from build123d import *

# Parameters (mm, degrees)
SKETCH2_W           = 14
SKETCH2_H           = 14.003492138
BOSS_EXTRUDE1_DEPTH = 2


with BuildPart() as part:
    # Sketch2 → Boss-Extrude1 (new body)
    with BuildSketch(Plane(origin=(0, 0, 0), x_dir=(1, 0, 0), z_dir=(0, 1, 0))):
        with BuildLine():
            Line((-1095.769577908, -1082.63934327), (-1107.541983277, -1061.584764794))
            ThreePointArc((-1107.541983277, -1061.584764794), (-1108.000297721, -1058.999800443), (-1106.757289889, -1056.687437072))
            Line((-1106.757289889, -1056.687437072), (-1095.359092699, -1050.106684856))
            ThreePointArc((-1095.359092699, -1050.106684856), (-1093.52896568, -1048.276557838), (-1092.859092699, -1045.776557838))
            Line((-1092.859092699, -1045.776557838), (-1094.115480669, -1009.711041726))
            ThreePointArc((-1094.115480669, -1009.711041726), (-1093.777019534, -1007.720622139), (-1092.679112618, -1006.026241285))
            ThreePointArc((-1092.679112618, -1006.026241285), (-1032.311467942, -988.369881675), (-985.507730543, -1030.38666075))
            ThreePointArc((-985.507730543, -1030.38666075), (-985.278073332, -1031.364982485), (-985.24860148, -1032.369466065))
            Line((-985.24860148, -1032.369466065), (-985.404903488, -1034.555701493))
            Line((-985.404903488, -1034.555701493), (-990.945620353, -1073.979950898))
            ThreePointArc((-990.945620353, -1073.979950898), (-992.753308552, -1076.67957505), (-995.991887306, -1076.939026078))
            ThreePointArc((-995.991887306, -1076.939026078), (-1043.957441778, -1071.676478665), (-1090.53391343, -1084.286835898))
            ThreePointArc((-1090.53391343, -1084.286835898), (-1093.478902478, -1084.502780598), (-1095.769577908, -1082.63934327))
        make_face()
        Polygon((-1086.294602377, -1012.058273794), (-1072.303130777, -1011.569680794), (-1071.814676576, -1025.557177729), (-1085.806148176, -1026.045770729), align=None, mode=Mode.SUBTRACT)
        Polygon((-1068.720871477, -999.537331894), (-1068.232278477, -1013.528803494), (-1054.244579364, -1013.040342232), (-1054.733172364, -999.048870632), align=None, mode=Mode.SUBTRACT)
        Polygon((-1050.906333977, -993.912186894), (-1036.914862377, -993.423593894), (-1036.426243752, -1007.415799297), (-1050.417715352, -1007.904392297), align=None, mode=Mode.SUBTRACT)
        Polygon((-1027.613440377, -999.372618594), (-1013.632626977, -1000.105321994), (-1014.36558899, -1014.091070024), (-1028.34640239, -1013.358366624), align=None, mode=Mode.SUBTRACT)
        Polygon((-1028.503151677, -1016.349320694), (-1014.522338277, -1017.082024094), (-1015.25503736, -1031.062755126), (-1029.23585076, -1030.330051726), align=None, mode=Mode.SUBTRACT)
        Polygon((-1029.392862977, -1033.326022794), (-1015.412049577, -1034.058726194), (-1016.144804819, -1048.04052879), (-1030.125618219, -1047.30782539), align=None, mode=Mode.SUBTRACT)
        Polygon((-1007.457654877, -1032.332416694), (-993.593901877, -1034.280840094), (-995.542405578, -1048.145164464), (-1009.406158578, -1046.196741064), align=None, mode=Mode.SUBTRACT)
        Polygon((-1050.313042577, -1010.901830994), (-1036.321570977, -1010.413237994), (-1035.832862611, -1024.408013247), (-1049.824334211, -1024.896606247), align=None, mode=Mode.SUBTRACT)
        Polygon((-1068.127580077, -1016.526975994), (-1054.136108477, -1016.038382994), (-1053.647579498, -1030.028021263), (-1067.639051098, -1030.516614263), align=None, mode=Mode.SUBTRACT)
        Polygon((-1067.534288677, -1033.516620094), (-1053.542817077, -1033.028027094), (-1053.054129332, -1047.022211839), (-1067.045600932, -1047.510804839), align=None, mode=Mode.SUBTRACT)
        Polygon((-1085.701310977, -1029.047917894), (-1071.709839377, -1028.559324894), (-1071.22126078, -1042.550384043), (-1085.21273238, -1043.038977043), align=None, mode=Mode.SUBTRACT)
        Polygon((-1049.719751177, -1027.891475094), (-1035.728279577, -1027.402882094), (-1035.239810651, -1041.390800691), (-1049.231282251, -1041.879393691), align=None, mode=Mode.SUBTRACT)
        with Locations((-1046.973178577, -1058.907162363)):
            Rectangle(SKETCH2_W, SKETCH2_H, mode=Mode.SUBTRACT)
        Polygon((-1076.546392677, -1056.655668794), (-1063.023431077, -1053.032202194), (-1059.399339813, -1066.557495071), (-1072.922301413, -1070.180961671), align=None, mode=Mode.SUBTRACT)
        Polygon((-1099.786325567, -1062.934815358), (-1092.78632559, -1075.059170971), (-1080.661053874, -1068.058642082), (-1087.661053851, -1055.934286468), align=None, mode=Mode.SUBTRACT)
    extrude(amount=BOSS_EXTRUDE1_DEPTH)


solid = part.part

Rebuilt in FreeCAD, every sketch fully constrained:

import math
import FreeCAD as App
import Part
import Sketcher

V = App.Vector
Q = App.Units.Quantity


def add_polygon(sketch, points):
    """Adds a closed chain of lines whose ends are joined by coincident constraints."""
    first, n = sketch.GeometryCount, len(points)
    for a, b in zip(points, points[1:] + points[:1]):
        sketch.addGeometry(Part.LineSegment(App.Vector(*a, 0), App.Vector(*b, 0)), False)
    for i in range(n):
        sketch.addConstraint(Sketcher.Constraint("Coincident", first + i, 2, first + (i + 1) % n, 1))

doc = App.newDocument("Part")
body = doc.addObject("PartDesign::Body", "Body")

sketch1 = doc.addObject("Sketcher::SketchObject", "Sketch")
body.addObject(sketch1)
sketch1.AttachmentSupport = (doc.XZ_Plane, [""])
sketch1.MapMode = "FlatFace"
sketch1.addGeometry(Part.LineSegment(V(-1107.5, 1061.6, 0), V(-1095.8, 1082.6, 0)), False)
sketch1.addGeometry(Part.ArcOfCircle(Part.Circle(V(-1092.3, 1080.7, 0), V(0, 0, 1), 4), math.radians(64), math.radians(151)), False)
sketch1.addGeometry(Part.ArcOfCircle(Part.Circle(V(-1033.9, 1201.2, 0), V(0, 0, 1), 129.9), math.radians(-116), math.radians(-73)), False)
sketch1.addGeometry(Part.ArcOfCircle(Part.Circle(V(-994.6, 1073.5, 0), V(0, 0, 1), 3.7), math.radians(8), math.radians(111)), False)
sketch1.addGeometry(Part.LineSegment(V(-990.9, 1074, 0), V(-985.4, 1034.6, 0)), False)
sketch1.addGeometry(Part.LineSegment(V(-985.4, 1034.6, 0), V(-985.2, 1032.4, 0)), False)
sketch1.addGeometry(Part.ArcOfCircle(Part.Circle(V(-990.2, 1032, 0), V(0, 0, 1), 5), math.radians(-19), math.radians(4)), False)
sketch1.addGeometry(Part.ArcOfCircle(Part.Circle(V(-1046.6, 1051.4, 0), V(0, 0, 1), 64.6), math.radians(-135), math.radians(-19)), False)
sketch1.addGeometry(Part.ArcOfCircle(Part.Circle(V(-1089.1, 1009.5, 0), V(0, 0, 1), 5), math.radians(178), math.radians(225)), False)
sketch1.addGeometry(Part.LineSegment(V(-1094.1, 1009.7, 0), V(-1092.9, 1045.8, 0)), False)
sketch1.addGeometry(Part.ArcOfCircle(Part.Circle(V(-1097.9, 1045.8, 0), V(0, 0, 1), 5), math.radians(0), math.radians(60)), False)
sketch1.addGeometry(Part.LineSegment(V(-1095.4, 1050.1, 0), V(-1106.8, 1056.7, 0)), False)
sketch1.addGeometry(Part.ArcOfCircle(Part.Circle(V(-1104.1, 1059.6, 0), V(0, 0, 1), 4), math.radians(151), math.radians(227)), False)
add_polygon(sketch1, [(-1007.5, 1032.3), (-993.6, 1034.3), (-995.5, 1048.1), (-1009.4, 1046.2)])
add_polygon(sketch1, [(-1029.4, 1033.3), (-1015.4, 1034.1), (-1016.1, 1048), (-1030.1, 1047.3)])
add_polygon(sketch1, [(-1049.7, 1027.9), (-1035.7, 1027.4), (-1035.2, 1041.4), (-1049.2, 1041.9)])
add_polygon(sketch1, [(-1054, 1065.9), (-1054, 1051.9), (-1040, 1051.9), (-1040, 1065.9)])
add_polygon(sketch1, [(-1076.5, 1056.7), (-1063, 1053), (-1059.4, 1066.6), (-1072.9, 1070.2)])
add_polygon(sketch1, [(-1099.8, 1062.9), (-1087.7, 1055.9), (-1080.7, 1068.1), (-1092.8, 1075.1)])
add_polygon(sketch1, [(-1067.5, 1033.5), (-1053.5, 1033), (-1053.1, 1047), (-1067, 1047.5)])
add_polygon(sketch1, [(-1085.7, 1029), (-1071.7, 1028.6), (-1071.2, 1042.6), (-1085.2, 1043)])
add_polygon(sketch1, [(-1028.5, 1016.3), (-1014.5, 1017.1), (-1015.3, 1031.1), (-1029.2, 1030.3)])
add_polygon(sketch1, [(-1050.3, 1010.9), (-1036.3, 1010.4), (-1035.8, 1024.4), (-1049.8, 1024.9)])
add_polygon(sketch1, [(-1027.6, 999.4), (-1013.6, 1000.1), (-1014.4, 1014.1), (-1028.3, 1013.4)])
add_polygon(sketch1, [(-1050.9, 993.9), (-1036.9, 993.4), (-1036.4, 1007.4), (-1050.4, 1007.9)])
add_polygon(sketch1, [(-1068.1, 1016.5), (-1054.1, 1016), (-1053.6, 1030), (-1067.6, 1030.5)])
add_polygon(sketch1, [(-1086.3, 1012.1), (-1072.3, 1011.6), (-1071.8, 1025.6), (-1085.8, 1026)])
add_polygon(sketch1, [(-1068.7, 999.5), (-1054.7, 999), (-1054.2, 1013), (-1068.2, 1013.5)])
sketch1.addConstraint(Sketcher.Constraint("Tangent", 0, 2, 1, 2))
sketch1.addConstraint(Sketcher.Constraint("Tangent", 1, 1, 2, 1))
sketch1.addConstraint(Sketcher.Constraint("Coincident", 2, 2, 3, 2))
sketch1.addConstraint(Sketcher.Constraint("Tangent", 3, 1, 4, 1))
sketch1.addConstraint(Sketcher.Constraint("Coincident", 4, 2, 5, 1))
sketch1.addConstraint(Sketcher.Constraint("Coincident", 5, 2, 6, 2))
sketch1.addConstraint(Sketcher.Constraint("Tangent", 6, 1, 7, 2))
sketch1.addConstraint(Sketcher.Constraint("Tangent", 7, 1, 8, 2))
sketch1.addConstraint(Sketcher.Constraint("Tangent", 8, 1, 9, 1))
sketch1.addConstraint(Sketcher.Constraint("Coincident", 9, 2, 10, 1))
sketch1.addConstraint(Sketcher.Constraint("Tangent", 10, 2, 11, 1))
sketch1.addConstraint(Sketcher.Constraint("Coincident", 11, 2, 12, 2))
sketch1.addConstraint(Sketcher.Constraint("Tangent", 12, 1, 0, 1))
sketch1.addConstraint(Sketcher.Constraint("Vertical", 25))
sketch1.addConstraint(Sketcher.Constraint("Horizontal", 26))
sketch1.addConstraint(Sketcher.Constraint("Vertical", 27))
sketch1.addConstraint(Sketcher.Constraint("Horizontal", 28))
sketch1.addConstraint(Sketcher.Constraint("Equal", 1, 12))
sketch1.addConstraint(Sketcher.Constraint("Perpendicular", 4, 13))
sketch1.addConstraint(Sketcher.Constraint("Perpendicular", 13, 14))
sketch1.addConstraint(Sketcher.Constraint("Perpendicular", 14, 15))
sketch1.addConstraint(Sketcher.Constraint("Perpendicular", 15, 16))
sketch1.addConstraint(Sketcher.Constraint("Perpendicular", 17, 18))
sketch1.addConstraint(Sketcher.Constraint("Perpendicular", 18, 19))
sketch1.addConstraint(Sketcher.Constraint("Perpendicular", 19, 20))
sketch1.addConstraint(Sketcher.Constraint("Perpendicular", 21, 22))
sketch1.addConstraint(Sketcher.Constraint("Perpendicular", 22, 23))
sketch1.addConstraint(Sketcher.Constraint("Perpendicular", 23, 24))
sketch1.addConstraint(Sketcher.Constraint("Perpendicular", 29, 30))
sketch1.addConstraint(Sketcher.Constraint("Perpendicular", 30, 31))
sketch1.addConstraint(Sketcher.Constraint("Perpendicular", 31, 32))
sketch1.addConstraint(Sketcher.Constraint("Parallel", 11, 33))
sketch1.addConstraint(Sketcher.Constraint("Perpendicular", 33, 34))
sketch1.addConstraint(Sketcher.Constraint("Perpendicular", 34, 35))
sketch1.addConstraint(Sketcher.Constraint("Perpendicular", 35, 36))
sketch1.addConstraint(Sketcher.Constraint("Perpendicular", 24, 37))
sketch1.addConstraint(Sketcher.Constraint("Perpendicular", 37, 38))
sketch1.addConstraint(Sketcher.Constraint("Perpendicular", 38, 39))
sketch1.addConstraint(Sketcher.Constraint("Perpendicular", 39, 40))
sketch1.addConstraint(Sketcher.Constraint("Perpendicular", 40, 41))
sketch1.addConstraint(Sketcher.Constraint("Perpendicular", 41, 42))
sketch1.addConstraint(Sketcher.Constraint("Perpendicular", 42, 43))
sketch1.addConstraint(Sketcher.Constraint("Perpendicular", 43, 44))
sketch1.addConstraint(Sketcher.Constraint("Perpendicular", 20, 45))
sketch1.addConstraint(Sketcher.Constraint("Perpendicular", 45, 46))
sketch1.addConstraint(Sketcher.Constraint("Perpendicular", 46, 47))
sketch1.addConstraint(Sketcher.Constraint("Perpendicular", 47, 48))
sketch1.addConstraint(Sketcher.Constraint("Perpendicular", 44, 49))
sketch1.addConstraint(Sketcher.Constraint("Perpendicular", 49, 50))
sketch1.addConstraint(Sketcher.Constraint("Perpendicular", 50, 51))
sketch1.addConstraint(Sketcher.Constraint("Perpendicular", 51, 52))
sketch1.addConstraint(Sketcher.Constraint("Perpendicular", 48, 53))
sketch1.addConstraint(Sketcher.Constraint("Perpendicular", 53, 54))
sketch1.addConstraint(Sketcher.Constraint("Perpendicular", 54, 55))
sketch1.addConstraint(Sketcher.Constraint("Perpendicular", 55, 56))
sketch1.addConstraint(Sketcher.Constraint("Perpendicular", 52, 57))
sketch1.addConstraint(Sketcher.Constraint("Perpendicular", 57, 58))
sketch1.addConstraint(Sketcher.Constraint("Perpendicular", 58, 59))
sketch1.addConstraint(Sketcher.Constraint("Perpendicular", 59, 60))
sketch1.addConstraint(Sketcher.Constraint("Perpendicular", 60, 61))
sketch1.addConstraint(Sketcher.Constraint("Perpendicular", 61, 62))
sketch1.addConstraint(Sketcher.Constraint("Perpendicular", 62, 63))
sketch1.addConstraint(Sketcher.Constraint("Perpendicular", 63, 64))
sketch1.addConstraint(Sketcher.Constraint("Perpendicular", 64, 65))
sketch1.addConstraint(Sketcher.Constraint("Perpendicular", 65, 66))
sketch1.addConstraint(Sketcher.Constraint("Perpendicular", 66, 67))
sketch1.addConstraint(Sketcher.Constraint("Perpendicular", 67, 68))
sketch1.addConstraint(Sketcher.Constraint("Perpendicular", 68, 69))
sketch1.addConstraint(Sketcher.Constraint("Perpendicular", 69, 70))
sketch1.addConstraint(Sketcher.Constraint("Perpendicular", 70, 71))
sketch1.addConstraint(Sketcher.Constraint("Perpendicular", 71, 72))
sketch1.addConstraint(Sketcher.Constraint("Horizontal", 10, 3, 9, 2))
sketch1.addConstraint(Sketcher.Constraint("Equal", 15, 17))
sketch1.addConstraint(Sketcher.Constraint("Equal", 19, 21))
sketch1.addConstraint(Sketcher.Constraint("Equal", 23, 29))
sketch1.addConstraint(Sketcher.Constraint("Equal", 31, 34))
sketch1.addConstraint(Sketcher.Constraint("Equal", 36, 37))
sketch1.addConstraint(Sketcher.Constraint("Equal", 39, 41))
sketch1.addConstraint(Sketcher.Constraint("Equal", 43, 45))
sketch1.addConstraint(Sketcher.Constraint("Equal", 47, 49))
sketch1.addConstraint(Sketcher.Constraint("Equal", 51, 53))
sketch1.addConstraint(Sketcher.Constraint("Equal", 55, 57))
sketch1.addConstraint(Sketcher.Constraint("Equal", 59, 61))
sketch1.addConstraint(Sketcher.Constraint("Equal", 63, 65))
sketch1.addConstraint(Sketcher.Constraint("Equal", 67, 70))
sketch1.addConstraint(Sketcher.Constraint("Radius", 1, 4.0))
sketch1.addConstraint(Sketcher.Constraint("Radius", 10, 5.0))
sketch1.addConstraint(Sketcher.Constraint("DistanceX", 26, 1, 26, 2, 14.0))
sketch1.addConstraint(Sketcher.Constraint("Angle", 4, Q("-82 deg")))
sketch1.addConstraint(Sketcher.Constraint("Angle", 11, Q("150 deg")))
sketch1.addConstraint(Sketcher.Constraint("Angle", 17, Q("3 deg")))
sketch1.addConstraint(Sketcher.Constraint("Angle", 21, Q("-2 deg")))
sketch1.addConstraint(Sketcher.Constraint("Angle", 29, Q("-15 deg")))
sketch1.addConstraint(Sketcher.Constraint("Distance", 13, 14.0))
sketch1.addConstraint(Sketcher.Constraint("Radius", 6, 5.002069))
sketch1.addConstraint(Sketcher.Constraint("Radius", 8, 5.00098))
sketch1.addConstraint(Sketcher.Constraint("Radius", 2, 129.883103))
sketch1.addConstraint(Sketcher.Constraint("Radius", 3, 3.731565))
sketch1.addConstraint(Sketcher.Constraint("Radius", 7, 64.645495))
sketch1.addConstraint(Sketcher.Constraint("DistanceY", -1, 1, 4, 2, 1034.555701))
sketch1.addConstraint(Sketcher.Constraint("DistanceX", 5, 2, -1, 1, 985.248601))
sketch1.addConstraint(Sketcher.Constraint("DistanceX", 13, 2, -1, 1, 993.593902))
sketch1.addConstraint(Sketcher.Constraint("DistanceY", -1, 1, 22, 2, 1041.390801))
sketch1.addConstraint(Sketcher.Constraint("DistanceX", 31, 2, -1, 1, 1072.922301))
sketch1.addConstraint(Sketcher.Constraint("DistanceX", 39, 2, -1, 1, 1067.045601))
sketch1.addConstraint(Sketcher.Constraint("DistanceY", -1, 1, 58, 2, 1007.415799))
sketch1.addConstraint(Sketcher.Constraint("Distance", 0, 24.122289))
sketch1.addConstraint(Sketcher.Constraint("Distance", 18, 14.00099))
sketch1.addConstraint(Sketcher.Constraint("Distance", 54, 14.004941))
sketch1.addConstraint(Sketcher.Constraint("DistanceY", 25, 2, 25, 1, 14.003492))
sketch1.addConstraint(Sketcher.Constraint("DistanceX", 1, 3, -1, 1, 1092.278271))
sketch1.addConstraint(Sketcher.Constraint("DistanceX", 3, 3, -1, 1, 994.64087))
sketch1.addConstraint(Sketcher.Constraint("DistanceY", -1, 1, 6, 3, 1032.013181))
sketch1.addConstraint(Sketcher.Constraint("DistanceY", -1, 1, 7, 3, 1051.40741))
sketch1.addConstraint(Sketcher.Constraint("DistanceY", -1, 1, 8, 3, 1009.536932))
sketch1.addConstraint(Sketcher.Constraint("DistanceY", -1, 1, 3, 1, 1073.979951))
sketch1.addConstraint(Sketcher.Constraint("DistanceX", 6, 1, -1, 1, 985.507731))
sketch1.addConstraint(Sketcher.Constraint("DistanceY", -1, 1, 8, 1, 1009.711042))
sketch1.addConstraint(Sketcher.Constraint("DistanceX", 11, 2, -1, 1, 1106.75729))
sketch1.addConstraint(Sketcher.Constraint("DistanceY", -1, 1, 13, 2, 1034.28084))
sketch1.addConstraint(Sketcher.Constraint("DistanceX", 15, 2, -1, 1, 1009.406159))
sketch1.addConstraint(Sketcher.Constraint("DistanceX", 17, 2, -1, 1, 1015.41205))
sketch1.addConstraint(Sketcher.Constraint("DistanceY", -1, 1, 18, 2, 1048.040529))
sketch1.addConstraint(Sketcher.Constraint("DistanceX", 21, 2, -1, 1, 1035.72828))
sketch1.addConstraint(Sketcher.Constraint("DistanceX", 22, 2, -1, 1, 1035.239811))
sketch1.addConstraint(Sketcher.Constraint("DistanceX", 25, 2, -1, 1, 1053.973179))
sketch1.addConstraint(Sketcher.Constraint("DistanceY", -1, 1, 27, 2, 1065.908908))
sketch1.addConstraint(Sketcher.Constraint("DistanceX", 29, 2, -1, 1, 1063.023431))
sketch1.addConstraint(Sketcher.Constraint("DistanceY", -1, 1, 31, 2, 1070.180962))
sketch1.addConstraint(Sketcher.Constraint("DistanceY", -1, 1, 35, 2, 1075.059171))
sketch1.addConstraint(Sketcher.Constraint("DistanceY", -1, 1, 38, 2, 1047.022212))
sketch1.addConstraint(Sketcher.Constraint("DistanceX", 40, 2, -1, 1, 1067.534289))
sketch1.addConstraint(Sketcher.Constraint("DistanceX", 41, 2, -1, 1, 1071.709839))
sketch1.addConstraint(Sketcher.Constraint("DistanceX", 42, 2, -1, 1, 1071.221261))
sketch1.addConstraint(Sketcher.Constraint("DistanceX", 45, 2, -1, 1, 1014.522338))
sketch1.addConstraint(Sketcher.Constraint("DistanceX", 47, 2, -1, 1, 1029.235851))
sketch1.addConstraint(Sketcher.Constraint("DistanceY", -1, 1, 47, 2, 1030.330052))
sketch1.addConstraint(Sketcher.Constraint("DistanceX", 49, 2, -1, 1, 1036.321571))
sketch1.addConstraint(Sketcher.Constraint("DistanceY", -1, 1, 52, 2, 1010.901831))
sketch1.addConstraint(Sketcher.Constraint("DistanceY", -1, 1, 53, 2, 1000.105322))
sketch1.addConstraint(Sketcher.Constraint("DistanceX", 54, 2, -1, 1, 1014.365589))
sketch1.addConstraint(Sketcher.Constraint("DistanceX", 61, 2, -1, 1, 1054.136108))
sketch1.addConstraint(Sketcher.Constraint("DistanceX", 62, 2, -1, 1, 1053.647579))
sketch1.addConstraint(Sketcher.Constraint("DistanceY", -1, 1, 62, 2, 1030.028021))
sketch1.addConstraint(Sketcher.Constraint("DistanceX", 65, 2, -1, 1, 1072.303131))
sketch1.addConstraint(Sketcher.Constraint("DistanceY", -1, 1, 65, 2, 1011.569681))
sketch1.addConstraint(Sketcher.Constraint("DistanceX", 67, 2, -1, 1, 1085.806148))
sketch1.addConstraint(Sketcher.Constraint("DistanceY", -1, 1, 69, 2, 999.048871))
sketch1.addConstraint(Sketcher.Constraint("DistanceX", 70, 2, -1, 1, 1054.244579))
sketch1.addConstraint(Sketcher.Constraint("DistanceX", 71, 2, -1, 1, 1068.232278))
sketch1.addConstraint(Sketcher.Constraint("Distance", 9, 36.087393))
sketch1.addConstraint(Sketcher.Constraint("Distance", 33, 14.001058))
sketch1.addConstraint(Sketcher.Constraint("Distance", 50, 14.003306))
sketch1.addConstraint(Sketcher.Constraint("Distance", 58, 14.000734))
sketch1.addConstraint(Sketcher.Constraint("DistanceY", -1, 1, 1, 3, 1080.687222))
sketch1.addConstraint(Sketcher.Constraint("DistanceX", 2, 3, -1, 1, 1033.893272))
sketch1.addConstraint(Sketcher.Constraint("DistanceX", 33, 2, -1, 1, 1087.661054))
sketch1.addConstraint(Sketcher.Constraint("DistanceY", -1, 1, 41, 2, 1028.559325))
sketch1.addConstraint(Sketcher.Constraint("DistanceX", 57, 2, -1, 1, 1036.914862))
pad1 = doc.addObject("PartDesign::Pad", "Pad")
body.addObject(pad1)
pad1.Profile = sketch1
pad1.Length = 2
pad1.Reversed = True

doc.recompute()
